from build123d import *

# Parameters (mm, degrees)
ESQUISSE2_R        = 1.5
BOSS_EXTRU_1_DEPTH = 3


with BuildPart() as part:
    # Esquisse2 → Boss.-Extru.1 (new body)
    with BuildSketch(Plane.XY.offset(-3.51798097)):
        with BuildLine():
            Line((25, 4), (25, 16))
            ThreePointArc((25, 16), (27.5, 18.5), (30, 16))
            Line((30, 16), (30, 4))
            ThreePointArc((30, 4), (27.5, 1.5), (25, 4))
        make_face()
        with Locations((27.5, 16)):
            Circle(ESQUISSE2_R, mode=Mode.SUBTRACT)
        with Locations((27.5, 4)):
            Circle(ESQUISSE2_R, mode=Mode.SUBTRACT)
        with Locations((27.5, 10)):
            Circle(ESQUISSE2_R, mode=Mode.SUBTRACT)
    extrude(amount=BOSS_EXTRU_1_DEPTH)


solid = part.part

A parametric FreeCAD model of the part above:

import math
import FreeCAD as App
import Part
import Sketcher

doc = App.newDocument("Part")
body = doc.addObject("PartDesign::Body", "Body")

# Sketch on XY plane
sketch1 = body.newObject("Sketcher::SketchObject", "Sketch")
sketch1.AttachmentSupport = (doc.getObject("XY_Plane"), [""])
sketch1.MapMode = "FlatFace"
sketch1.AttachmentOffset = App.Placement(App.Vector(0, 0, -3.517981), App.Rotation())
sketch1.addGeometry([
    Part.LineSegment(App.Vector(25, 16, 0), App.Vector(25, 4, 0)),  # 0
    Part.ArcOfCircle(Part.Circle(App.Vector(27.5, 4, 0), App.Vector(0, 0, 1), 2.5), math.radians(180), math.radians(360)),  # 1
    Part.LineSegment(App.Vector(30, 4, 0), App.Vector(30, 16, 0)),  # 2
    Part.ArcOfCircle(Part.Circle(App.Vector(27.5, 16, 0), App.Vector(0, 0, 1), 2.5), math.radians(0), math.radians(180)),  # 3
    Part.Circle(App.Vector(27.5, 4, 0), App.Vector(0, 0, 1), 1.5),  # 4
    Part.Circle(App.Vector(27.5, 10, 0), App.Vector(0, 0, 1), 1.5),  # 5
    Part.Circle(App.Vector(27.5, 16, 0), App.Vector(0, 0, 1), 1.5),  # 6
], False)
sketch1.addConstraint([
    Sketcher.Constraint("Tangent", 0, 2, 1, 1),
    Sketcher.Constraint("Tangent", 1, 2, 2, 1),
    Sketcher.Constraint("Tangent", 2, 2, 3, 1),
    Sketcher.Constraint("Tangent", 3, 2, 0, 1),
    Sketcher.Constraint("Vertical", 0),
    Sketcher.Constraint("Vertical", 2),
    Sketcher.Constraint("Coincident", 4, 3, 1, 3),
    Sketcher.Constraint("Coincident", 6, 3, 3, 3),
    Sketcher.Constraint("Equal", 4, 5),
    Sketcher.Constraint("Equal", 5, 6),
    Sketcher.Constraint("Vertical", 4, 3, 5, 3),
    Sketcher.Constraint("Diameter", 4, 3.0),
    Sketcher.Constraint("Radius", 1, 2.5),
    Sketcher.Constraint("DistanceY", 0, 2, 0, 1, 12.0),
    Sketcher.Constraint("DistanceY", -1, 1, 1, 3, 4.0),
    Sketcher.Constraint("DistanceY", -1, 1, 5, 3, 10.0),
    Sketcher.Constraint("DistanceX", -1, 1, 0, 2, 25.0),
])
pad1 = body.newObject("PartDesign::Pad", "Pad")
pad1.Profile = sketch1
pad1.Length = 3

doc.recompute()
